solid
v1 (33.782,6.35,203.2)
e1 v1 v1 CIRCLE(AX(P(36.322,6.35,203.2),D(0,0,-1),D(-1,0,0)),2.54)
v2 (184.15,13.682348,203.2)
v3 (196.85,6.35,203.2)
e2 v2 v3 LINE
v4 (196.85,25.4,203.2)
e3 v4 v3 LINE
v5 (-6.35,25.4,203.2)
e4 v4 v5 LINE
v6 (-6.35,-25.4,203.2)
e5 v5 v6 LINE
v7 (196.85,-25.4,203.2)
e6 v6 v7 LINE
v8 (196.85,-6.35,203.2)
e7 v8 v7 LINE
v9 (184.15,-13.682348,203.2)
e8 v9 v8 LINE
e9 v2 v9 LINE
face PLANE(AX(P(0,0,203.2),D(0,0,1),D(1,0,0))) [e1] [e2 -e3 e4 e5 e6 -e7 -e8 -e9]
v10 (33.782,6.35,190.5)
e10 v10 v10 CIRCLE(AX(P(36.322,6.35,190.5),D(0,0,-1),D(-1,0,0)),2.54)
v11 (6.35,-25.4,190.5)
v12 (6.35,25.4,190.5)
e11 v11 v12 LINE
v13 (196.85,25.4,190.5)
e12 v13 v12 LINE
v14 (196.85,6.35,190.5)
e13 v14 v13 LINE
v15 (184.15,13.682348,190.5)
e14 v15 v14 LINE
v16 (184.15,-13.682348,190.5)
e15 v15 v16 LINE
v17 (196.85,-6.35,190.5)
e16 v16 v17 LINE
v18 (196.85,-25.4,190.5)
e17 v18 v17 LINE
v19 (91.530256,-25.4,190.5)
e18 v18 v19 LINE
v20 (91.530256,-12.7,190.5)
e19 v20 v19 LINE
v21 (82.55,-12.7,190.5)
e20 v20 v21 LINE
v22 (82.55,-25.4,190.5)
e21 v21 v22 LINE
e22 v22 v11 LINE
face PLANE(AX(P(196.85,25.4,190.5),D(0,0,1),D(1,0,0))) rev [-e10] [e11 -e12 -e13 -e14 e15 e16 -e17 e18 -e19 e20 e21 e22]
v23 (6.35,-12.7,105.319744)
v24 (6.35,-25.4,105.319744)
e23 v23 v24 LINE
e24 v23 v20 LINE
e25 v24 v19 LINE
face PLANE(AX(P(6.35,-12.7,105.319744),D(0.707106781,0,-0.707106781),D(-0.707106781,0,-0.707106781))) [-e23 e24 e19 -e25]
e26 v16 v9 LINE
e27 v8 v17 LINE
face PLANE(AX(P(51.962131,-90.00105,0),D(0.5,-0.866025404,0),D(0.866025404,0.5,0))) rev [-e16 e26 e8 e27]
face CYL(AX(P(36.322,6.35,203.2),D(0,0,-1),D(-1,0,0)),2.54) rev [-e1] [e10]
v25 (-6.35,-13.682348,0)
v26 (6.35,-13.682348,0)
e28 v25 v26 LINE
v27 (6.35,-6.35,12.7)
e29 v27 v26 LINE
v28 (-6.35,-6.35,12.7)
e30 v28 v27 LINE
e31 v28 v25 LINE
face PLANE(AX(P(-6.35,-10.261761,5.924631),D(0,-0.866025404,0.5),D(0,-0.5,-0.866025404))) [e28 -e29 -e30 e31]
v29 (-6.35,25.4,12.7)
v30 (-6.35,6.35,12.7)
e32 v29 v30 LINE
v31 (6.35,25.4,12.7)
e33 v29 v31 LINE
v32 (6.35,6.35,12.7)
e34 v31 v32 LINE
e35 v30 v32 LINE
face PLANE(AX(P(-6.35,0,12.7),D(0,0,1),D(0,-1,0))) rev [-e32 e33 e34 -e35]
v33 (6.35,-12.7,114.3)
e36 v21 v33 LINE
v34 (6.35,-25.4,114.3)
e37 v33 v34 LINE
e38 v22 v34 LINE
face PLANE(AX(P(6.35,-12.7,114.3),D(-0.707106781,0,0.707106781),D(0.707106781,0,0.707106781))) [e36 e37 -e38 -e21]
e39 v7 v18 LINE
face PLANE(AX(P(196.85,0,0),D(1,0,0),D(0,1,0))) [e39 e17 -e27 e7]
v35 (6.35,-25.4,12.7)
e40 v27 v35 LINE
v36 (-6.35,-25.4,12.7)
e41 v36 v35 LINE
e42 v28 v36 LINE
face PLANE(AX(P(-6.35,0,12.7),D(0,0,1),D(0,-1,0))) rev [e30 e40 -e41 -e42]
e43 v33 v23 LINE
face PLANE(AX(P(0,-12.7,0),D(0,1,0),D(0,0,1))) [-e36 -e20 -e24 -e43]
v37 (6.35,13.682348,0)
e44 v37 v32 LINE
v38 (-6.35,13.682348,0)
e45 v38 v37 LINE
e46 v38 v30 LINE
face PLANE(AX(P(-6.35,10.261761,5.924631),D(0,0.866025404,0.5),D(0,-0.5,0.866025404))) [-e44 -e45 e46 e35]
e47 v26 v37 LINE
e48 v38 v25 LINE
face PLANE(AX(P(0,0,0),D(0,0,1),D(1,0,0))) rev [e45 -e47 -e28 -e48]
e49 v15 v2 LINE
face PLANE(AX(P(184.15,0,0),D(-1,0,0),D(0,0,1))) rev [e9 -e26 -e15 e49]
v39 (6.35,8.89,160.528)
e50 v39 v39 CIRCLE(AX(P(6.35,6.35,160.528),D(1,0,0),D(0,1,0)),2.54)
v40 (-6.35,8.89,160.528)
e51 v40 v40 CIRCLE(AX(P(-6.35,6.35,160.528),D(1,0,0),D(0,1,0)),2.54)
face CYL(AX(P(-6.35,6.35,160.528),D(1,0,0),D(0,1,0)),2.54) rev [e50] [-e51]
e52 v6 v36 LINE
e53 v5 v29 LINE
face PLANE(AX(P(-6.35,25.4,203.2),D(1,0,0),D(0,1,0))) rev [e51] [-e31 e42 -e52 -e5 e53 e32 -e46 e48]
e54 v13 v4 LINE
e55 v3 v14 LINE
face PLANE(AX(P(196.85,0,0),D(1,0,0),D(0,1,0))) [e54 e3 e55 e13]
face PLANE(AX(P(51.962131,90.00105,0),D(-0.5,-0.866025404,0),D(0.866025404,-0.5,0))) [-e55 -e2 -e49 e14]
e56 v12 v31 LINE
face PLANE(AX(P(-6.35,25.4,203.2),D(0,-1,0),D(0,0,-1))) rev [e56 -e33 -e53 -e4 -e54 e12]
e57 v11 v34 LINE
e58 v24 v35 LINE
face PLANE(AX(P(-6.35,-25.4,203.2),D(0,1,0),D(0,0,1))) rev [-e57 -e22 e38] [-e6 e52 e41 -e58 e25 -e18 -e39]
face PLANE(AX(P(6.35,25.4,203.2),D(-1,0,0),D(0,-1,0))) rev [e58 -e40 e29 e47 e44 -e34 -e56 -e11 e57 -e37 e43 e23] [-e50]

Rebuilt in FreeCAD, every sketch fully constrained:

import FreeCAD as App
import Part
import Sketcher

V = App.Vector
Q = App.Units.Quantity


def add_polygon(sketch, points):
    """Adds a closed chain of lines whose ends are joined by coincident constraints."""
    first, n = sketch.GeometryCount, len(points)
    for a, b in zip(points, points[1:] + points[:1]):
        sketch.addGeometry(Part.LineSegment(App.Vector(*a, 0), App.Vector(*b, 0)), False)
    for i in range(n):
        sketch.addConstraint(Sketcher.Constraint("Coincident", first + i, 2, first + (i + 1) % n, 1))

doc = App.newDocument("Part")
body = doc.addObject("PartDesign::Body", "Body")

# Sketch on XY plane
sketch1 = body.newObject("Sketcher::SketchObject", "Sketch")
sketch1.AttachmentSupport = (doc.getObject("XY_Plane"), [""])
sketch1.MapMode = "FlatFace"
add_polygon(sketch1, [(-6.35, 25.4), (-6.35, -25.4), (6.35, -25.4), (6.35, 25.4)])  # lines 0-3
sketch1.addConstraint([
    Sketcher.Constraint("Vertical", 0),
    Sketcher.Constraint("Horizontal", 1),
    Sketcher.Constraint("Vertical", 2),
    Sketcher.Constraint("Horizontal", 3),
    Sketcher.Constraint("Symmetric", 0, 2, 2, 2, -1, 1),
    Sketcher.Constraint("DistanceY", 0, 2, 0, 1, Q("2 in")),
    Sketcher.Constraint("DistanceX", 1, 1, 1, 2, Q("0.5 in")),
])
pad1 = body.newObject("PartDesign::Pad", "Pad")
pad1.Profile = sketch1
pad1.Length = Q("8 in")

# Sketch on YZ plane
sketch2 = body.newObject("Sketcher::SketchObject", "Sketch001")
sketch2.AttachmentSupport = (doc.getObject("YZ_Plane"), [""])
sketch2.MapMode = "FlatFace"
sketch2.AttachmentOffset = App.Placement(V(0, 0, 0.25 * 25.4), App.Rotation())
add_polygon(sketch2, [(25.4, 203.2), (-25.4, 203.2), (-25.4, 190.5), (25.4, 190.5)])  # lines 0-3
sketch2.addConstraint([
    Sketcher.Constraint("Horizontal", 0),
    Sketcher.Constraint("Vertical", 1),
    Sketcher.Constraint("Horizontal", 2),
    Sketcher.Constraint("Vertical", 3),
    Sketcher.Constraint("DistanceX", 0, 2, 0, 1, Q("2 in")),
    Sketcher.Constraint("DistanceY", 1, 2, 1, 1, Q("0.5 in")),
    Sketcher.Constraint("DistanceX", 0, 2, -1, 1, Q("1 in")),
    Sketcher.Constraint("DistanceY", -1, 1, 0, 2, Q("8 in")),
])
pad2 = body.newObject("PartDesign::Pad", "Pad001")
pad2.Profile = sketch2
pad2.Length = Q("7.5 in")

# Sketch on XZ plane
sketch3 = body.newObject("Sketcher::SketchObject", "Sketch002")
sketch3.AttachmentSupport = (doc.getObject("XZ_Plane"), [""])
sketch3.MapMode = "FlatFace"
sketch3.AttachmentOffset = App.Placement(V(0, 0, 1 * 25.4), App.Rotation())
add_polygon(sketch3, [(6.35, 114.3), (6.35, 105.319744), (91.530256, 190.5), (82.55, 190.5)])  # lines 0-3
sketch3.addConstraint([
    Sketcher.Constraint("Vertical", 0),
    Sketcher.Constraint("Horizontal", 2),
    Sketcher.Constraint("Parallel", 1, 3),
    Sketcher.Constraint("Equal", 2, 0),
    Sketcher.Constraint("DistanceX", 0, 2, 2, 2, Q("3 in")),
    Sketcher.Constraint("DistanceY", -1, 1, 1, 2, Q("7.5 in")),
    Sketcher.Constraint("DistanceX", -1, 1, 0, 2, Q("0.25 in")),
    Sketcher.Constraint("DistanceX", 2, 2, 2, 1, Q("8.980256 mm")),
])
pad3 = body.newObject("PartDesign::Pad", "Pad002")
pad3.Profile = sketch3
pad3.Length = Q("0.5 in")
pad3.Reversed = True

# Sketch on XY plane
sketch4 = body.newObject("Sketcher::SketchObject", "Sketch003")
sketch4.AttachmentSupport = (doc.getObject("XY_Plane"), [""])
sketch4.MapMode = "FlatFace"
sketch4.AttachmentOffset = App.Placement(V(0, 0, 8 * 25.4), App.Rotation())
add_polygon(sketch4, [(196.85, 6.35), (184.15, 13.682348), (184.15, -13.682348), (196.85, -6.35)])  # lines 0-3
sketch4.addConstraint([
    Sketcher.Constraint("Vertical", 1),
    Sketcher.Constraint("Vertical", 3),
    Sketcher.Constraint("Equal", 0, 2),
    Sketcher.Constraint("DistanceY", 3, 1, 3, 2, Q("0.5 in")),
    Sketcher.Constraint("Angle", 0, Q("150 deg")),
    Sketcher.Constraint("DistanceX", 1, 2, 2, 2, Q("0.5 in")),
    Sketcher.Constraint("DistanceX", -1, 1, 0, 2, Q("7.25 in")),
    Sketcher.Constraint("DistanceY", 2, 2, -1, 1, Q("0.25 in")),
])
pocket1 = body.newObject("PartDesign::Pocket", "Pocket")
pocket1.Profile = sketch4
pocket1.Type = "ThroughAll"

# Sketch on YZ plane
sketch5 = body.newObject("Sketcher::SketchObject", "Sketch004")
sketch5.AttachmentSupport = (doc.getObject("YZ_Plane"), [""])
sketch5.MapMode = "FlatFace"
sketch5.AttachmentOffset = App.Placement(V(0, 0, 0.25 * 25.4), App.Rotation())
add_polygon(sketch5, [(6.35, 12.7), (13.682348, 0), (25.4, 0), (25.4, 12.7)])  # lines 0-3
add_polygon(sketch5, [(-25.4, 0), (-13.682348, 0), (-6.35, 12.7), (-25.4, 12.7)])  # lines 4-7
sketch5.addConstraint([
    Sketcher.Constraint("Horizontal", 1),
    Sketcher.Constraint("Vertical", 2),
    Sketcher.Constraint("Horizontal", 3),
    Sketcher.Constraint("Horizontal", 4),
    Sketcher.Constraint("Horizontal", 6),
    Sketcher.Constraint("Vertical", 7),
    Sketcher.Constraint("Symmetric", 0, 2, 4, 2, -1, 1),
    Sketcher.Constraint("Symmetric", 3, 2, 5, 2, -2),
    Sketcher.Constraint("Symmetric", 1, 2, 7, 2, -2),
    Sketcher.Constraint("DistanceY", 2, 1, 2, 2, Q("0.5 in")),
    Sketcher.Constraint("DistanceX", -1, 1, 1, 2, Q("1 in")),
    Sketcher.Constraint("Angle", 0, Q("-60 deg")),
    Sketcher.Constraint("DistanceX", 3, 2, 3, 1, Q("0.75 in")),
])
pocket2 = body.newObject("PartDesign::Pocket", "Pocket001")
pocket2.Profile = sketch5
pocket2.Type = "ThroughAll"

# Sketch on XY plane
sketch6 = body.newObject("Sketcher::SketchObject", "Sketch005")
sketch6.AttachmentSupport = (doc.getObject("XY_Plane"), [""])
sketch6.MapMode = "FlatFace"
sketch6.AttachmentOffset = App.Placement(V(0, 0, 7.5 * 25.4), App.Rotation())
sketch6.addGeometry(Part.Circle(V(36.322, 6.35, 0), V(0, 0, 1), 2.54), False)
sketch6.addConstraint([
    Sketcher.Constraint("Diameter", 0, Q("0.2 in")),
    Sketcher.Constraint("DistanceX", -1, 1, 0, 3, Q("1.43 in")),
    Sketcher.Constraint("DistanceY", -1, 1, 0, 3, Q("0.25 in")),
])
pocket3 = body.newObject("PartDesign::Pocket", "Pocket002")
pocket3.Profile = sketch6
pocket3.Type = "ThroughAll"
pocket3.Reversed = True

# Sketch on YZ plane
sketch7 = body.newObject("Sketcher::SketchObject", "Sketch006")
sketch7.AttachmentSupport = (doc.getObject("YZ_Plane"), [""])
sketch7.MapMode = "FlatFace"
sketch7.AttachmentOffset = App.Placement(V(0, 0, 0.25 * 25.4), App.Rotation())
sketch7.addGeometry(Part.Circle(V(6.35, 160.528, 0), V(0, 0, 1), 2.54), False)
sketch7.addConstraint([
    Sketcher.Constraint("Diameter", 0, Q("0.2 in")),
    Sketcher.Constraint("DistanceX", -1, 1, 0, 3, Q("0.25 in")),
    Sketcher.Constraint("DistanceY", -1, 1, 0, 3, Q("6.32 in")),
])
pocket4 = body.newObject("PartDesign::Pocket", "Pocket003")
pocket4.Profile = sketch7
pocket4.Type = "ThroughAll"

doc.recompute()
